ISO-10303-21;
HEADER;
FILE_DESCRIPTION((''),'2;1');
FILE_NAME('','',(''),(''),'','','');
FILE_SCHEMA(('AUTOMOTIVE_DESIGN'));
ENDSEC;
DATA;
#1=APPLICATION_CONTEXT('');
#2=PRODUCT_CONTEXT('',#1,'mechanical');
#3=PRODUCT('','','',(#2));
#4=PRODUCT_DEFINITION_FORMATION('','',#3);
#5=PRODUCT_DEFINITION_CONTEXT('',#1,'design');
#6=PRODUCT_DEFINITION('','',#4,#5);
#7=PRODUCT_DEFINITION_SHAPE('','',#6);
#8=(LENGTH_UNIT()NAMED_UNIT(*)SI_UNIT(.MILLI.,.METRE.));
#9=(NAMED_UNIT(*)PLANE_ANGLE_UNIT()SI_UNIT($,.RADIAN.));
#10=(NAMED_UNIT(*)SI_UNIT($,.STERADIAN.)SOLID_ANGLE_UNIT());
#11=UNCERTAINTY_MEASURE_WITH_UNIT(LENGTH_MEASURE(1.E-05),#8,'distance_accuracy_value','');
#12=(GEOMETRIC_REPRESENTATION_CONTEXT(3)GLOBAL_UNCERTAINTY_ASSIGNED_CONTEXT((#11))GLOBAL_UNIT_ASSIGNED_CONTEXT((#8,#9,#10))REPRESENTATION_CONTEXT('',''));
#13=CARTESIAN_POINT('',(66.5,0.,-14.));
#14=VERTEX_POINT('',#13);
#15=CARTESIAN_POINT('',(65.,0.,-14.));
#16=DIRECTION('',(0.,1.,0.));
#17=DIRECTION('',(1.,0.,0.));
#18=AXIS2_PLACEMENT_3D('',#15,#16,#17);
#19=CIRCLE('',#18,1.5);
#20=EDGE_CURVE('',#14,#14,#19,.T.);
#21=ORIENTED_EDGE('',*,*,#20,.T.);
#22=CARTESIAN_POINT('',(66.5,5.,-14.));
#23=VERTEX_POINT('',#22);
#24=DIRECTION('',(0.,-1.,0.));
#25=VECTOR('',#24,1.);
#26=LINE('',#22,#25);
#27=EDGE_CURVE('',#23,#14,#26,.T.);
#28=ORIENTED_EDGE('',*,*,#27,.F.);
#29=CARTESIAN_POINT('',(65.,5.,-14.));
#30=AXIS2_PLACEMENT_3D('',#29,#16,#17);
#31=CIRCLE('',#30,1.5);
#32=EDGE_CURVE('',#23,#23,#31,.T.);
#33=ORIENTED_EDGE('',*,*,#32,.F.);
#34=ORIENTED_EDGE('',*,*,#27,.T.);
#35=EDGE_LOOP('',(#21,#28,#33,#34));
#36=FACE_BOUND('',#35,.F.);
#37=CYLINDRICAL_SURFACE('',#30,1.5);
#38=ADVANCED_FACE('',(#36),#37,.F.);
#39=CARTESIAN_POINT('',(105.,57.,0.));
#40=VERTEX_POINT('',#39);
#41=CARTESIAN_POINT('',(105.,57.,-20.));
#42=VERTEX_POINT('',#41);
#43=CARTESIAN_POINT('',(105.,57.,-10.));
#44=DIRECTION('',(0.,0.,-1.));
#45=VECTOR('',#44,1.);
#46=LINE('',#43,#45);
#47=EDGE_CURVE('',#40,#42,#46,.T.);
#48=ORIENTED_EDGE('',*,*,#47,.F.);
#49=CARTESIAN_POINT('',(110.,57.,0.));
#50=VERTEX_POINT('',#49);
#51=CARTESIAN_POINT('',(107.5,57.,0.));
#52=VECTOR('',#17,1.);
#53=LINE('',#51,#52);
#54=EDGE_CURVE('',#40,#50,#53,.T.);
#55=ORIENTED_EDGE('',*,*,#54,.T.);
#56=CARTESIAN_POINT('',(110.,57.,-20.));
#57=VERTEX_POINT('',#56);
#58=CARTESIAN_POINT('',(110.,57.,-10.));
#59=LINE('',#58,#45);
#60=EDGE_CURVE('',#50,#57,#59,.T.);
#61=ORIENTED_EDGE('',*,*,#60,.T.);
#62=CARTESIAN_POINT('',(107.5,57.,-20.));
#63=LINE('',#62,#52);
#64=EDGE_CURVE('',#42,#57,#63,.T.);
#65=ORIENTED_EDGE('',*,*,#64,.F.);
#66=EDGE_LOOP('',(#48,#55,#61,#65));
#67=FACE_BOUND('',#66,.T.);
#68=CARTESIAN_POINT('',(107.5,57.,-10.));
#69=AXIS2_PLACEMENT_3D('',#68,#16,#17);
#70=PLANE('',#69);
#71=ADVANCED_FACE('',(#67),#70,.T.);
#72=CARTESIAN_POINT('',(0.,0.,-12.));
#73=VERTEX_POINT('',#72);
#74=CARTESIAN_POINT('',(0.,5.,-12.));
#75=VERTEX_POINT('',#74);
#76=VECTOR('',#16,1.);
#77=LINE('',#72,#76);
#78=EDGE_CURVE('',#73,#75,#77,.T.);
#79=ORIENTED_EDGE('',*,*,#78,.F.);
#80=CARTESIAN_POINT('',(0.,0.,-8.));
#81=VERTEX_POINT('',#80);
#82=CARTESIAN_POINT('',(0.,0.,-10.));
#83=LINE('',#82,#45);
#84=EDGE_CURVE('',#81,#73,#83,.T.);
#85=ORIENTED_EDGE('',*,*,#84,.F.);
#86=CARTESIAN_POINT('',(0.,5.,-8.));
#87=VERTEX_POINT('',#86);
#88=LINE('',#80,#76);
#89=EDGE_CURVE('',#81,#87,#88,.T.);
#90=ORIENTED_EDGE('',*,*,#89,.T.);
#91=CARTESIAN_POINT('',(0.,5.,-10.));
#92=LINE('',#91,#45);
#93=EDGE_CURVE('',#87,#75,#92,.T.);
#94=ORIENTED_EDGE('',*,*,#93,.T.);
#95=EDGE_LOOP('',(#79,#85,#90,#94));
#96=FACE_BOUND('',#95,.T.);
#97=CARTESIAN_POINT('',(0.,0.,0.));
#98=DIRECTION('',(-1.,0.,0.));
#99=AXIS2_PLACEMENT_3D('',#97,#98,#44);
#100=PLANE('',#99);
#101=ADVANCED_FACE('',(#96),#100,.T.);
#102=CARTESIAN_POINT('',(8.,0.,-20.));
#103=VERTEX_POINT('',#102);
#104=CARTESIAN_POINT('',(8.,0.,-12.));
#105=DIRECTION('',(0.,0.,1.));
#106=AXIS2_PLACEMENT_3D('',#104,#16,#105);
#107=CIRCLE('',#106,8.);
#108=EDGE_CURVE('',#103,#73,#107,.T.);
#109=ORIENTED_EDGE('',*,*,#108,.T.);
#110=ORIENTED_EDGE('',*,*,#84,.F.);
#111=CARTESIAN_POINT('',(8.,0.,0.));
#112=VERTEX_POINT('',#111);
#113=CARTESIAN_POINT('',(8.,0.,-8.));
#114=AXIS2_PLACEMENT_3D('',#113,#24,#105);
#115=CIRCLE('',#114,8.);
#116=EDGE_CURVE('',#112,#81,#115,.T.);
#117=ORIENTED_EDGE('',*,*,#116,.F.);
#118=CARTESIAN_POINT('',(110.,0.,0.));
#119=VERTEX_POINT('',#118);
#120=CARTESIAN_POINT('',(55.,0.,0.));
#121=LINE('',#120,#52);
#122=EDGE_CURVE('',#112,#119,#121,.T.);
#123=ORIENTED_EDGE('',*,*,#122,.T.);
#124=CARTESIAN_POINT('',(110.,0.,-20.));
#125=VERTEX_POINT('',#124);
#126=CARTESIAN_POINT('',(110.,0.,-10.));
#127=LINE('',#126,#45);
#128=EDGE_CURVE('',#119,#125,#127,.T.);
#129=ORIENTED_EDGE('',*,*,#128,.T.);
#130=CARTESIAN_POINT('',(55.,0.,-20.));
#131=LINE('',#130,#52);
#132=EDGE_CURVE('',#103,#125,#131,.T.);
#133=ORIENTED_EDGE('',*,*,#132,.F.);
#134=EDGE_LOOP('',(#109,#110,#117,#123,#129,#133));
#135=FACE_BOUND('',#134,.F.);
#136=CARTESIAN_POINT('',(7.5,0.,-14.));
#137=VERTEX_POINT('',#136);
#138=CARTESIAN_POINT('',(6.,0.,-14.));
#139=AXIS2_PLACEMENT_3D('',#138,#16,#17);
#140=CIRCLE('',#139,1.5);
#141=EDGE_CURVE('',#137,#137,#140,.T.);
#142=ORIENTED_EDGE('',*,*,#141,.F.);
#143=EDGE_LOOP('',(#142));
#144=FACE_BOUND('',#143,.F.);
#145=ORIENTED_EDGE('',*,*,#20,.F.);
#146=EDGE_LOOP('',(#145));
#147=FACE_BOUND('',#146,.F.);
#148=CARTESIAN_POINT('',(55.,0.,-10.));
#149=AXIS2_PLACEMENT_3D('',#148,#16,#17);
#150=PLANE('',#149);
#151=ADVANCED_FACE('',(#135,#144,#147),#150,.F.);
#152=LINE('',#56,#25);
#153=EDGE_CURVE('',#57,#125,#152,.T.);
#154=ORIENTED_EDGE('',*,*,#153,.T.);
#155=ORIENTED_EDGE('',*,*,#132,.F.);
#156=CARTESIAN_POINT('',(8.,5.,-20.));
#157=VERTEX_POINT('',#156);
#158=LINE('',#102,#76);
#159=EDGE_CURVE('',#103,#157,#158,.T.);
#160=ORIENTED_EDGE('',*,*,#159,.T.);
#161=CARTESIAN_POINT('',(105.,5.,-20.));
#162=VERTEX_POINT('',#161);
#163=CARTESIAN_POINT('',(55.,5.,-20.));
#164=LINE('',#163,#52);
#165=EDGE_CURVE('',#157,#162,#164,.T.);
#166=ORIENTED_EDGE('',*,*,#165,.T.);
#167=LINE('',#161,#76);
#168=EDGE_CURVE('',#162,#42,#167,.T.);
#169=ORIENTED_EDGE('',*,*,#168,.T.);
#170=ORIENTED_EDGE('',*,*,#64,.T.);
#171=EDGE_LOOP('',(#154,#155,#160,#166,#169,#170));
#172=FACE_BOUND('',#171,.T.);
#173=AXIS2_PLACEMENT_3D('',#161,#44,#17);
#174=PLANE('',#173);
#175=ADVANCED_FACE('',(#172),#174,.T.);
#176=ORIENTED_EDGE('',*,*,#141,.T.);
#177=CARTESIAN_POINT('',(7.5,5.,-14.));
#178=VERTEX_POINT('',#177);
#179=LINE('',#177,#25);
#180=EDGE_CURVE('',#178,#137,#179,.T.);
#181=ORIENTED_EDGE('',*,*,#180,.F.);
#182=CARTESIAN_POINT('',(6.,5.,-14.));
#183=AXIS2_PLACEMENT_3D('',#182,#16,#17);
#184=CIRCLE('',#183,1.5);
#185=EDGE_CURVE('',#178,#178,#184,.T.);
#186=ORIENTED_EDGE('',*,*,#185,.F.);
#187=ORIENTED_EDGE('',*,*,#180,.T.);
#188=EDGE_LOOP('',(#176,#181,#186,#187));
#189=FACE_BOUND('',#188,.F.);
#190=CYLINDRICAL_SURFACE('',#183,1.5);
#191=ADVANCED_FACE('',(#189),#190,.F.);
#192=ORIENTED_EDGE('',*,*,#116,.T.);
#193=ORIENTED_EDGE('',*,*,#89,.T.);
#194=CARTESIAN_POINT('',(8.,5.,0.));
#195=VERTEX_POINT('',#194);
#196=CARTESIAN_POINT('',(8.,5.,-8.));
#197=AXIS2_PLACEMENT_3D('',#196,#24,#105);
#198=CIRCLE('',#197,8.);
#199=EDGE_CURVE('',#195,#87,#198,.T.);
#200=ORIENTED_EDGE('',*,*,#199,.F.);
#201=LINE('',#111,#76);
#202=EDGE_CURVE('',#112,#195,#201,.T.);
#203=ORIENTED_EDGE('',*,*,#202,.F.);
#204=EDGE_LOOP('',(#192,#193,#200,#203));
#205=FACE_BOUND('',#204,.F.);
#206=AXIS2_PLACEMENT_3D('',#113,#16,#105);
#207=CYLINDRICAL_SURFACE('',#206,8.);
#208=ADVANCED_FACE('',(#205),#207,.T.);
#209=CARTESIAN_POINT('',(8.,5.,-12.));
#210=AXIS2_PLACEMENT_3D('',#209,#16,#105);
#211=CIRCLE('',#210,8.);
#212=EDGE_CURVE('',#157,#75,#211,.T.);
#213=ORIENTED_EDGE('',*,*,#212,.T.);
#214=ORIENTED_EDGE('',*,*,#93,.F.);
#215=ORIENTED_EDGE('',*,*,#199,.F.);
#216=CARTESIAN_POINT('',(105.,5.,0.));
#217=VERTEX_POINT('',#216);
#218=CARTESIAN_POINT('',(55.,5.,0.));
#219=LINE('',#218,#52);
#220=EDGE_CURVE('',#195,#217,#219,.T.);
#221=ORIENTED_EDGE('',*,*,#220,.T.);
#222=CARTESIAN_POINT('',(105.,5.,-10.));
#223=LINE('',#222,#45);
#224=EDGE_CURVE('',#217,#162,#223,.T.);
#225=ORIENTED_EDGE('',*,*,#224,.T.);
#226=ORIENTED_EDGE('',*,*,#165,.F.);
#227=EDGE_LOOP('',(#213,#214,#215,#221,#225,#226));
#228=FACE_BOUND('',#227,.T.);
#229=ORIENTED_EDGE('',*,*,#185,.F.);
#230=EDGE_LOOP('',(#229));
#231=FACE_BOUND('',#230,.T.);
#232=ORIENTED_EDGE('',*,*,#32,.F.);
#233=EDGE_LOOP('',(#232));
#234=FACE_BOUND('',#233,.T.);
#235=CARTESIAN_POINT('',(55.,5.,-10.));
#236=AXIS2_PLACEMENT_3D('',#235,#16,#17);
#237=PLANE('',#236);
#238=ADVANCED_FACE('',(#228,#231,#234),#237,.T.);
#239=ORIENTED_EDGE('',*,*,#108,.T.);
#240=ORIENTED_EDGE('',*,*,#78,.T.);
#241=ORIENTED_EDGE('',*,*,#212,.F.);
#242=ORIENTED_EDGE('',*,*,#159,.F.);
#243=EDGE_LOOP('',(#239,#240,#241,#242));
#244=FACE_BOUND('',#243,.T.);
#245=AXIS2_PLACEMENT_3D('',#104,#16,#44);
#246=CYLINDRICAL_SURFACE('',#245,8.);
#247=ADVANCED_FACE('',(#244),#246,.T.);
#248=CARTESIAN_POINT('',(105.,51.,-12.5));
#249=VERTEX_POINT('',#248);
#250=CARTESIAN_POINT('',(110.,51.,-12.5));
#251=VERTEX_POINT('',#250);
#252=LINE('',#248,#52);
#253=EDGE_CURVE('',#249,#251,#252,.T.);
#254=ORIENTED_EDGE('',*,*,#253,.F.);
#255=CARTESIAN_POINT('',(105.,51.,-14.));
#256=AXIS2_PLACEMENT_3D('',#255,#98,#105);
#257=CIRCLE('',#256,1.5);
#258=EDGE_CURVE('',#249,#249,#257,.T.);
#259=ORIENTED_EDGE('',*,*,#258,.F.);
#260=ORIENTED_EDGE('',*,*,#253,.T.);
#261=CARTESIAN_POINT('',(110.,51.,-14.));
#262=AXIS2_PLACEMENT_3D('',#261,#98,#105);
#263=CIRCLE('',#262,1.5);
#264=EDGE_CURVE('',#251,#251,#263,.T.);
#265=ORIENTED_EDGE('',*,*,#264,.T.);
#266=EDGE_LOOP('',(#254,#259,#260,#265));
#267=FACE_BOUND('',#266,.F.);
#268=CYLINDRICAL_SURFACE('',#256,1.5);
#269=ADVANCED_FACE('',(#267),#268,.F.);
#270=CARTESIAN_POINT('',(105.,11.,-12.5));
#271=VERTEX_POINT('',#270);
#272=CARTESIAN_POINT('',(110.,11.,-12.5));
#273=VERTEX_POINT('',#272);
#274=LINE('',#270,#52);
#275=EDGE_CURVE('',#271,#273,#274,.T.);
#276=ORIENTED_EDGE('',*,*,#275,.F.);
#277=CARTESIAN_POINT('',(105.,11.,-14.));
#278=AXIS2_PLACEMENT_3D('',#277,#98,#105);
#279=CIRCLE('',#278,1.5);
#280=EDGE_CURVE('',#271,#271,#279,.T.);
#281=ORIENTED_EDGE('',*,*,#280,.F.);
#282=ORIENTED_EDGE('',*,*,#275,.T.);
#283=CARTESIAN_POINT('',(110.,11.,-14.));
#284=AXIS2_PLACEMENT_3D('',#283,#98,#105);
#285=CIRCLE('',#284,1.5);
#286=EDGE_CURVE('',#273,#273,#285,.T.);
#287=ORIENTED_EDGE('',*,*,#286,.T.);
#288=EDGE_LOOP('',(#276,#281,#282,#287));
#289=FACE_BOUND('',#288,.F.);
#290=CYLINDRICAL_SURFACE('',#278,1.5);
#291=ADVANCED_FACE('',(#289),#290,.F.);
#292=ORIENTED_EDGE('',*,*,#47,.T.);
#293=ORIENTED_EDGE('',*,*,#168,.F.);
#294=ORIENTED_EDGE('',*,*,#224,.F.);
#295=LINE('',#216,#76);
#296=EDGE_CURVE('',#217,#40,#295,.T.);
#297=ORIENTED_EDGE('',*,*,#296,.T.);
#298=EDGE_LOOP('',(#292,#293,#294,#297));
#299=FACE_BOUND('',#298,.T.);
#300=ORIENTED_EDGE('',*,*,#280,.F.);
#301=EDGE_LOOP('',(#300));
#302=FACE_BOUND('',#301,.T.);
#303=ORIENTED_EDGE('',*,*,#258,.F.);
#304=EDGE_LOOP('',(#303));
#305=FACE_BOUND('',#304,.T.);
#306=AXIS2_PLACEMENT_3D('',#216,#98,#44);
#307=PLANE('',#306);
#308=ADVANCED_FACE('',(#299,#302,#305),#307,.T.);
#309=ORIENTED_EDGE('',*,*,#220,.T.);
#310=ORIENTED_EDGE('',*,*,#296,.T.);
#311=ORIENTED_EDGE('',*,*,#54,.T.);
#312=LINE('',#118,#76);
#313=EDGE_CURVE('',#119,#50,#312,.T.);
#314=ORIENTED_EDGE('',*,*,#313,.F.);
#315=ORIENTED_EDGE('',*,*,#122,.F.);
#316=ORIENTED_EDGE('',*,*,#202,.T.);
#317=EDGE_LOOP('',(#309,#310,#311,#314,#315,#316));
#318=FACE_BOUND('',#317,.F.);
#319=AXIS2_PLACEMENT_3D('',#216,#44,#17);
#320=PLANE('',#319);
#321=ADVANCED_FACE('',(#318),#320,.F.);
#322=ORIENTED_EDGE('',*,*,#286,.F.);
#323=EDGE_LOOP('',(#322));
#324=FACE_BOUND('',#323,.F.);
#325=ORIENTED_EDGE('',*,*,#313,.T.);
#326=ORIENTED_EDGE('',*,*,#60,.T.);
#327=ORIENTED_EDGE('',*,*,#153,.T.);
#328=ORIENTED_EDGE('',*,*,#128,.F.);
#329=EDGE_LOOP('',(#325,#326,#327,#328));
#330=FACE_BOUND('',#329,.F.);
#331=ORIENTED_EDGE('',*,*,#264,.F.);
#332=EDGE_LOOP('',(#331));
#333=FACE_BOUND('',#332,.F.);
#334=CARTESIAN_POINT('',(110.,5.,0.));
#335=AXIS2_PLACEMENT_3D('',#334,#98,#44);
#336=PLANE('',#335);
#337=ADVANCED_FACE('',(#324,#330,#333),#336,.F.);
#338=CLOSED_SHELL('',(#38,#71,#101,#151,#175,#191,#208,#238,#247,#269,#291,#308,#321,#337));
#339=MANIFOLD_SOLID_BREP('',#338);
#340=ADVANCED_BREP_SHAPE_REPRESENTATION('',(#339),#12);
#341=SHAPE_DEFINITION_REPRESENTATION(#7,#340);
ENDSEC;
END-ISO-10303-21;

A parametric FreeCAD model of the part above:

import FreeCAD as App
import Part
import Sketcher
from FreeCAD import Vector
Q = App.Units.Quantity


def edges_at(feature, points):
    """Names of the edges that pass closest to the given points."""
    edges = feature.Shape.Edges
    near = lambda p: min(range(len(edges)), key=lambda i: edges[i].distToShape(Part.Vertex(*p))[0])
    return sorted({f"Edge{near(p) + 1}" for p in points})

doc = App.newDocument("Part")
body = doc.addObject("PartDesign::Body", "Body")

# Sketch on XZ plane
sketch1 = body.newObject("Sketcher::SketchObject", "Sketch")
sketch1.AttachmentSupport = (doc.getObject("XZ_Plane"), [""])
sketch1.MapMode = "FlatFace"
sketch1.addGeometry(Part.LineSegment(Vector(0, -20, 0), Vector(0, 0, 0)), False)
sketch1.addGeometry(Part.LineSegment(Vector(0, 0, 0), Vector(110, 0, 0)), False)
sketch1.addGeometry(Part.LineSegment(Vector(110, 0, 0), Vector(110, -20, 0)), False)
sketch1.addGeometry(Part.LineSegment(Vector(110, -20, 0), Vector(0, -20, 0)), False)
sketch1.addConstraint(Sketcher.Constraint("Coincident", 0, 2, 1, 1))
sketch1.addConstraint(Sketcher.Constraint("Coincident", 1, 2, 2, 1))
sketch1.addConstraint(Sketcher.Constraint("Coincident", 2, 2, 3, 1))
sketch1.addConstraint(Sketcher.Constraint("Coincident", 3, 2, 0, 1))
sketch1.addConstraint(Sketcher.Constraint("Vertical", 0))
sketch1.addConstraint(Sketcher.Constraint("Horizontal", 1))
sketch1.addConstraint(Sketcher.Constraint("Vertical", 2))
sketch1.addConstraint(Sketcher.Constraint("Horizontal", 3))
sketch1.addConstraint(Sketcher.Constraint("Coincident", 0, 2, -1, 1))
sketch1.addConstraint(Sketcher.Constraint("DistanceX", 1, 1, 1, 2, Q("110 mm")))
sketch1.addConstraint(Sketcher.Constraint("DistanceY", 0, 1, 0, 2, Q("20 mm")))
pad1 = body.newObject("PartDesign::Pad", "Pad")
pad1.Profile = sketch1
pad1.Length = 5
pad1.Reversed = True

# Sketch on XZ plane
sketch2 = body.newObject("Sketcher::SketchObject", "Sketch001")
sketch2.AttachmentSupport = (doc.getObject("XZ_Plane"), [""])
sketch2.MapMode = "FlatFace"
sketch2.AttachmentOffset = App.Placement(Vector(0, 0, -5), App.Rotation())
sketch2.addGeometry(Part.LineSegment(Vector(105, -20, 0), Vector(105, 0, 0)), False)
sketch2.addGeometry(Part.LineSegment(Vector(105, 0, 0), Vector(110, 0, 0)), False)
sketch2.addGeometry(Part.LineSegment(Vector(110, 0, 0), Vector(110, -20, 0)), False)
sketch2.addGeometry(Part.LineSegment(Vector(110, -20, 0), Vector(105, -20, 0)), False)
sketch2.addConstraint(Sketcher.Constraint("Coincident", 0, 2, 1, 1))
sketch2.addConstraint(Sketcher.Constraint("Coincident", 1, 2, 2, 1))
sketch2.addConstraint(Sketcher.Constraint("Coincident", 2, 2, 3, 1))
sketch2.addConstraint(Sketcher.Constraint("Coincident", 3, 2, 0, 1))
sketch2.addConstraint(Sketcher.Constraint("Vertical", 0))
sketch2.addConstraint(Sketcher.Constraint("Horizontal", 1))
sketch2.addConstraint(Sketcher.Constraint("Vertical", 2))
sketch2.addConstraint(Sketcher.Constraint("Horizontal", 3))
sketch2.addConstraint(Sketcher.Constraint("PointOnObject", 0, 2, -1))
sketch2.addConstraint(Sketcher.Constraint("DistanceX", 1, 1, 1, 2, Q("5 mm")))
sketch2.addConstraint(Sketcher.Constraint("DistanceY", 0, 1, 0, 2, Q("20 mm")))
sketch2.addConstraint(Sketcher.Constraint("DistanceX", -1, 1, 0, 2, Q("105 mm")))
pad2 = body.newObject("PartDesign::Pad", "Pad001")
pad2.Profile = sketch2
pad2.Length = 52
pad2.Reversed = True

# Sketch on XZ plane
sketch3 = body.newObject("Sketcher::SketchObject", "Sketch002")
sketch3.AttachmentSupport = (doc.getObject("XZ_Plane"), [""])
sketch3.MapMode = "FlatFace"
sketch3.AttachmentOffset = App.Placement(Vector(0, 0, -5), App.Rotation())
sketch3.addGeometry(Part.Circle(Vector(6, -14, 0), Vector(0, 0, 1), 1.5), False)
sketch3.addGeometry(Part.Circle(Vector(65, -14, 0), Vector(0, 0, 1), 1.5), False)
sketch3.addConstraint(Sketcher.Constraint("Equal", 0, 1))
sketch3.addConstraint(Sketcher.Constraint("Horizontal", 0, 3, 1, 3))
sketch3.addConstraint(Sketcher.Constraint("Diameter", 0, Q("3 mm")))
sketch3.addConstraint(Sketcher.Constraint("DistanceX", -1, 1, 0, 3, Q("6 mm")))
sketch3.addConstraint(Sketcher.Constraint("DistanceY", 0, 3, -1, 1, Q("14 mm")))
sketch3.addConstraint(Sketcher.Constraint("DistanceX", -1, 1, 1, 3, Q("65 mm")))
pocket1 = body.newObject("PartDesign::Pocket", "Pocket")
pocket1.Profile = sketch3
pocket1.Type = "ThroughAll"
pocket1.Reversed = True
doc.recompute()

fillet = body.newObject("PartDesign::Fillet", "Fillet")
fillet.Base = (pocket1, edges_at(pocket1, [(0, 2.5, 0), (0, 2.5, -20)]))
fillet.Radius = 8

# Sketch on YZ plane
sketch4 = body.newObject("Sketcher::SketchObject", "Sketch003")
sketch4.AttachmentSupport = (doc.getObject("YZ_Plane"), [""])
sketch4.MapMode = "FlatFace"
sketch4.AttachmentOffset = App.Placement(Vector(0, 0, 105), App.Rotation())
sketch4.addGeometry(Part.Circle(Vector(11, -14, 0), Vector(0, 0, 1), 1.5), False)
sketch4.addGeometry(Part.Circle(Vector(51, -14, 0), Vector(0, 0, 1), 1.5), False)
sketch4.addConstraint(Sketcher.Constraint("Equal", 0, 1))
sketch4.addConstraint(Sketcher.Constraint("Horizontal", 0, 3, 1, 3))
sketch4.addConstraint(Sketcher.Constraint("Diameter", 0, Q("3 mm")))
sketch4.addConstraint(Sketcher.Constraint("DistanceX", -1, 1, 0, 3, Q("11 mm")))
sketch4.addConstraint(Sketcher.Constraint("DistanceY", 0, 3, -1, 1, Q("14 mm")))
sketch4.addConstraint(Sketcher.Constraint("DistanceX", -1, 1, 1, 3, Q("51 mm")))
pocket2 = body.newObject("PartDesign::Pocket", "Pocket001")
pocket2.Profile = sketch4
pocket2.Type = "ThroughAll"
pocket2.Reversed = True

doc.recompute()
